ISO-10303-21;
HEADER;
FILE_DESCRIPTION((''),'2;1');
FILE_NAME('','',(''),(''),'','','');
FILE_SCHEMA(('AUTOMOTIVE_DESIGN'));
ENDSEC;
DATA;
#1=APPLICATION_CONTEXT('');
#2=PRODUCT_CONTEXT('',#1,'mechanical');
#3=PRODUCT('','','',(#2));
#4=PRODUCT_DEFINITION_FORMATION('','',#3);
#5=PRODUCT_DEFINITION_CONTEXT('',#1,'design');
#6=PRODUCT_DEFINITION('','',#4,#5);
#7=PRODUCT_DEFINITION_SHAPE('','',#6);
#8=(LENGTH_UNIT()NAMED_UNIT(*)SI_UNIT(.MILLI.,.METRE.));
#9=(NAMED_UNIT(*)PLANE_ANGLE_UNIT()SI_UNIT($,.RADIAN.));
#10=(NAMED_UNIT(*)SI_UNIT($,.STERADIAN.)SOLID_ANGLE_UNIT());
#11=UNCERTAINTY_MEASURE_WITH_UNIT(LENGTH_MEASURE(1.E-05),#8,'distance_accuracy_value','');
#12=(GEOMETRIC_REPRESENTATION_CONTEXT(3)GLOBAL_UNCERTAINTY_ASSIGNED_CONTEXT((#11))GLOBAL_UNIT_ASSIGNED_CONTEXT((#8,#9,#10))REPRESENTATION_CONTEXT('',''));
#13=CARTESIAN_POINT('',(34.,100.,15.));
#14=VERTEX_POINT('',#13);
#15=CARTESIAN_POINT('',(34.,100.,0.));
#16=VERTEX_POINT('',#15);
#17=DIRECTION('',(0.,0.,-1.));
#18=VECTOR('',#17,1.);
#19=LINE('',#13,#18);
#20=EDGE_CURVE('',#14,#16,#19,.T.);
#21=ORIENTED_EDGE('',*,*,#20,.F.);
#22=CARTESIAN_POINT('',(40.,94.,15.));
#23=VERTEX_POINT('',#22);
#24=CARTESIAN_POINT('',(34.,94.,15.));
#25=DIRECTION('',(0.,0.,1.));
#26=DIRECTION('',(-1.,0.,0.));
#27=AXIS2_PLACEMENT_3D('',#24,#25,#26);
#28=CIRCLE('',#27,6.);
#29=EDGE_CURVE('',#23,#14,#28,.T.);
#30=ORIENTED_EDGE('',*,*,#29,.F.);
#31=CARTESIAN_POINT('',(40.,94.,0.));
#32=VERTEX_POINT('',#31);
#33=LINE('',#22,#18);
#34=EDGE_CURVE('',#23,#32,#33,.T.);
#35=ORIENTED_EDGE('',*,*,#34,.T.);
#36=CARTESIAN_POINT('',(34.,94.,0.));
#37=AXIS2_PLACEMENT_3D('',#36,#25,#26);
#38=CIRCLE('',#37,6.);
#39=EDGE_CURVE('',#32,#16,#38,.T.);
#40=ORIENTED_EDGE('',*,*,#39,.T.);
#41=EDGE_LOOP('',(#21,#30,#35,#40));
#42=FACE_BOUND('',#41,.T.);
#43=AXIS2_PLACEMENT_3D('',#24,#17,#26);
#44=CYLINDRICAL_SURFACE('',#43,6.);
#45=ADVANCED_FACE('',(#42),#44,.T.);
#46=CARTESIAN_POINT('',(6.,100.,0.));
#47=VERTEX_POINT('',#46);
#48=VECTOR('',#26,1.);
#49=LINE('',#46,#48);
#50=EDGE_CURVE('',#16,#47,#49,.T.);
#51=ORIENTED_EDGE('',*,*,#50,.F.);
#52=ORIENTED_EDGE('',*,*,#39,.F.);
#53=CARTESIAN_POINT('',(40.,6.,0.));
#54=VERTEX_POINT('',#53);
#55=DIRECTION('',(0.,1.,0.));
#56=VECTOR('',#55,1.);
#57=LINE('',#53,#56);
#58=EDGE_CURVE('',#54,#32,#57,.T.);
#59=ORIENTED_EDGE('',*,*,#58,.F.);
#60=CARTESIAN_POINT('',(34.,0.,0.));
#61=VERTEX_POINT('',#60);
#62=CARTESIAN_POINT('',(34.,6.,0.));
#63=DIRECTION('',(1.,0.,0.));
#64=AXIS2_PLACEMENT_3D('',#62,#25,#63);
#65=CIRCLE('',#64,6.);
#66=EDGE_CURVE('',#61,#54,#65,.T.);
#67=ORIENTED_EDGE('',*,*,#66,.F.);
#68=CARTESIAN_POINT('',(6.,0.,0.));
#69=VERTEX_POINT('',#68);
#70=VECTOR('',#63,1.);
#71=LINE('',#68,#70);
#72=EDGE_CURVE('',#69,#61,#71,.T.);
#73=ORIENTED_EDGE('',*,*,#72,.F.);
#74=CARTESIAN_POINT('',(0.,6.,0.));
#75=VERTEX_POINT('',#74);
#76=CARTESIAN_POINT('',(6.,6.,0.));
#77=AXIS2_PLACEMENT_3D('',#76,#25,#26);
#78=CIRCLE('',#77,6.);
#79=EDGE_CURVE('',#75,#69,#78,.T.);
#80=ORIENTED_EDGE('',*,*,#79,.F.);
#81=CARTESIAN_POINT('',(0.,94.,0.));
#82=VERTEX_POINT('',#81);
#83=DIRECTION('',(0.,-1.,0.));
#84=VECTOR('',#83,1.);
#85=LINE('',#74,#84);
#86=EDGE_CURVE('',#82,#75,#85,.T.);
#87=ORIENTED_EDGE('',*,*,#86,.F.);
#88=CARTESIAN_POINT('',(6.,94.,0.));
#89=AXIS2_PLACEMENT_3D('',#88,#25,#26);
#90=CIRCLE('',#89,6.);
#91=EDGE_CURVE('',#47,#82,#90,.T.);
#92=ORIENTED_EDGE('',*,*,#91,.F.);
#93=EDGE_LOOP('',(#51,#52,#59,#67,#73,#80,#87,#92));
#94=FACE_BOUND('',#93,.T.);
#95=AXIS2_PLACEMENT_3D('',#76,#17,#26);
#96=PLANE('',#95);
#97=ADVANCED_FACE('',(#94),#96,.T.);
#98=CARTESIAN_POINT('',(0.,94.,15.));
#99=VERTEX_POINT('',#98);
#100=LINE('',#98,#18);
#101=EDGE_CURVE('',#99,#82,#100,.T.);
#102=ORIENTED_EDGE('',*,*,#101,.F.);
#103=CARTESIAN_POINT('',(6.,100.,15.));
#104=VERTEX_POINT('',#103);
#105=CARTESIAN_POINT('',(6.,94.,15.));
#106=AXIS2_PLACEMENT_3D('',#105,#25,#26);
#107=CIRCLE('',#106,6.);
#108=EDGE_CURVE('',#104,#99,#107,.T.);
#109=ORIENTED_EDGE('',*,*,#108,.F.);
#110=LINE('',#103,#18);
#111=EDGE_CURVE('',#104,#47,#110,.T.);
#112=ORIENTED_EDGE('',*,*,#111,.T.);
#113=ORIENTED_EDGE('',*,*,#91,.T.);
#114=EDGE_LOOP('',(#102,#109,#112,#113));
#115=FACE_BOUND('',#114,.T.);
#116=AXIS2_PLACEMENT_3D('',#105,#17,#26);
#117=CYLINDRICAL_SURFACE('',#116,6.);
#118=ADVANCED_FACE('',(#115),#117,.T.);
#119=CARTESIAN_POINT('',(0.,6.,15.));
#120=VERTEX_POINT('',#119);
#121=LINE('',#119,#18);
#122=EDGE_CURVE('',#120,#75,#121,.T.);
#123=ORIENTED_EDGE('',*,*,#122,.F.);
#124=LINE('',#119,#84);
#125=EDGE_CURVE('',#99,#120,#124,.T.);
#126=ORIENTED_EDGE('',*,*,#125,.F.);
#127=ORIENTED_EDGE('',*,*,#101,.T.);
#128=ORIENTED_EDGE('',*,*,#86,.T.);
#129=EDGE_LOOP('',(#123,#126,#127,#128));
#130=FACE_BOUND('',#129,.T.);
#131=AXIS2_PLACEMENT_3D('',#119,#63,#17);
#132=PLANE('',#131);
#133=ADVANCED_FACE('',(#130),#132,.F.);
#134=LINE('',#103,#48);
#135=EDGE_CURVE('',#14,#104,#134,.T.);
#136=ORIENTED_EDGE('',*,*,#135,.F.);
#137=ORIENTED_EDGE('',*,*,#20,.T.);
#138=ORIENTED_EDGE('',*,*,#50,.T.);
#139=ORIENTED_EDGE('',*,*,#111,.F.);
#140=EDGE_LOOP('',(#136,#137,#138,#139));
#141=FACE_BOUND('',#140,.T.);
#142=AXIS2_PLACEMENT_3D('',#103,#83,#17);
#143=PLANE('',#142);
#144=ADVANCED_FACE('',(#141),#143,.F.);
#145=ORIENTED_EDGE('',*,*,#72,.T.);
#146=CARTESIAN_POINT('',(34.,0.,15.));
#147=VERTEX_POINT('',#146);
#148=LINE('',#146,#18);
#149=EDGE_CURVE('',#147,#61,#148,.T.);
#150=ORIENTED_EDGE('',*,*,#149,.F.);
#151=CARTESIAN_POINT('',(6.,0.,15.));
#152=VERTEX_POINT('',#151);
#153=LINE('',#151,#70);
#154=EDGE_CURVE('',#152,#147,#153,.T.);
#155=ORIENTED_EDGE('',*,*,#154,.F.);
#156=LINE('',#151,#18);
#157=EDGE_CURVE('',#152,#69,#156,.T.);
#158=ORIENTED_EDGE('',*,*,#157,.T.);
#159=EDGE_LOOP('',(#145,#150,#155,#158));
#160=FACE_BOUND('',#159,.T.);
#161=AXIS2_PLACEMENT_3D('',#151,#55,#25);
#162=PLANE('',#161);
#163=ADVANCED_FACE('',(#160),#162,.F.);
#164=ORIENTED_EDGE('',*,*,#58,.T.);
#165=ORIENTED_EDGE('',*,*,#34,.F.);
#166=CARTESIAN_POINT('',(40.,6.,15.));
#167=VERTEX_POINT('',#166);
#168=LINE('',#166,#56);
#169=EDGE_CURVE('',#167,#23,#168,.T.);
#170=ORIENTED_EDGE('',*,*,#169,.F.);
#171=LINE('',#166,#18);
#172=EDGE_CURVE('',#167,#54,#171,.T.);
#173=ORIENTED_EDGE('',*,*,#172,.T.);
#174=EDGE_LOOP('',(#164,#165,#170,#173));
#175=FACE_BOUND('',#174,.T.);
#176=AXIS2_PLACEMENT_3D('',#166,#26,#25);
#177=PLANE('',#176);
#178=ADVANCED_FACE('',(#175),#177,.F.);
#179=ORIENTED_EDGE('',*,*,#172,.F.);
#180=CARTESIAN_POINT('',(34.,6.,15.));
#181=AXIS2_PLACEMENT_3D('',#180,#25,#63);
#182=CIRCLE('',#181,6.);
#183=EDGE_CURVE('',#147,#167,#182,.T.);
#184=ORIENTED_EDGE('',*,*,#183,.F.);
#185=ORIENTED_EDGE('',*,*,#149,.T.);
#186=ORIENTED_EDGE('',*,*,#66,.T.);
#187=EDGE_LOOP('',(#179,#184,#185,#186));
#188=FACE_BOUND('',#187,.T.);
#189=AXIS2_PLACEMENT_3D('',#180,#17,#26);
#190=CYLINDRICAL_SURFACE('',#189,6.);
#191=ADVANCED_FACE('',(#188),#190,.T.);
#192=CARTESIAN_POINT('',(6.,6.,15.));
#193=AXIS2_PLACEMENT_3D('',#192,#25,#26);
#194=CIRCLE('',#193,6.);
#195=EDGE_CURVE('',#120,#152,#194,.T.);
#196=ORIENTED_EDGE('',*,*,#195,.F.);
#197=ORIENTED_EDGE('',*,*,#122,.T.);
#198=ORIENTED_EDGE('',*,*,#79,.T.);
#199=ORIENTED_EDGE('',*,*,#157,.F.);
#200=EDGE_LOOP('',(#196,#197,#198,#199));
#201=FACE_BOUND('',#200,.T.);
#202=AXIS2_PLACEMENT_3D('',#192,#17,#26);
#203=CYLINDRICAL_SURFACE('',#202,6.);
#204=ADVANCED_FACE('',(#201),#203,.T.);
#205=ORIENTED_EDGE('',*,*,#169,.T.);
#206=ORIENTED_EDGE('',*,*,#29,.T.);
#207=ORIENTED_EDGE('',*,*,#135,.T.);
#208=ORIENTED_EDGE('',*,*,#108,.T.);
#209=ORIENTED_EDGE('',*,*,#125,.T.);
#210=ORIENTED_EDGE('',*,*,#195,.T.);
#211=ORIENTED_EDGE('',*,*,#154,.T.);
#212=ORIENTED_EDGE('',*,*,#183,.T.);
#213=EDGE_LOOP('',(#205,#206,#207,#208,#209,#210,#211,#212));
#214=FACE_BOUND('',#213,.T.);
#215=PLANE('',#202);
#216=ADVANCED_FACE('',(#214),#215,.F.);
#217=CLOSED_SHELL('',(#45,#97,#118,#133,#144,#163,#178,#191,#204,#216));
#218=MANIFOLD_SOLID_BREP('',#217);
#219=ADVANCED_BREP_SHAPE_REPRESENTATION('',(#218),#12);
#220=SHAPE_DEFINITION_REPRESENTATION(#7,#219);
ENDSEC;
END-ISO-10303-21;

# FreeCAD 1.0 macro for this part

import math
import FreeCAD as App
import Part
import Sketcher
Q = App.Units.Quantity

doc = App.newDocument("Part")
body = doc.addObject("PartDesign::Body", "Body")

# Sketch on XY plane
sketch1 = body.newObject("Sketcher::SketchObject", "Sketch")
sketch1.AttachmentSupport = (doc.getObject("XY_Plane"), [""])
sketch1.MapMode = "FlatFace"
sketch1.addGeometry(Part.LineSegment(App.Vector(6, 0, 0), App.Vector(34, 0, 0)), False)
sketch1.addGeometry(Part.ArcOfCircle(Part.Circle(App.Vector(34, 6, 0), App.Vector(0, 0, 1), 6), math.radians(-90), math.radians(0)), False)
sketch1.addGeometry(Part.LineSegment(App.Vector(40, 6, 0), App.Vector(40, 94, 0)), False)
sketch1.addGeometry(Part.ArcOfCircle(Part.Circle(App.Vector(34, 94, 0), App.Vector(0, 0, 1), 6), math.radians(0), math.radians(90)), False)
sketch1.addGeometry(Part.LineSegment(App.Vector(34, 100, 0), App.Vector(6, 100, 0)), False)
sketch1.addGeometry(Part.ArcOfCircle(Part.Circle(App.Vector(6, 94, 0), App.Vector(0, 0, 1), 6), math.radians(90), math.radians(180)), False)
sketch1.addGeometry(Part.LineSegment(App.Vector(0, 94, 0), App.Vector(0, 6, 0)), False)
sketch1.addGeometry(Part.ArcOfCircle(Part.Circle(App.Vector(6, 6, 0), App.Vector(0, 0, 1), 6), math.radians(180), math.radians(270)), False)
sketch1.addConstraint(Sketcher.Constraint("Tangent", 0, 2, 1, 1))
sketch1.addConstraint(Sketcher.Constraint("Tangent", 1, 2, 2, 1))
sketch1.addConstraint(Sketcher.Constraint("Tangent", 2, 2, 3, 1))
sketch1.addConstraint(Sketcher.Constraint("Tangent", 3, 2, 4, 1))
sketch1.addConstraint(Sketcher.Constraint("Tangent", 4, 2, 5, 1))
sketch1.addConstraint(Sketcher.Constraint("Tangent", 5, 2, 6, 1))
sketch1.addConstraint(Sketcher.Constraint("Tangent", 6, 2, 7, 1))
sketch1.addConstraint(Sketcher.Constraint("Tangent", 7, 2, 0, 1))
sketch1.addConstraint(Sketcher.Constraint("Horizontal", 0))
sketch1.addConstraint(Sketcher.Constraint("Vertical", 2))
sketch1.addConstraint(Sketcher.Constraint("Horizontal", 4))
sketch1.addConstraint(Sketcher.Constraint("Vertical", 6))
sketch1.addConstraint(Sketcher.Constraint("Equal", 1, 3))
sketch1.addConstraint(Sketcher.Constraint("Equal", 3, 5))
sketch1.addConstraint(Sketcher.Constraint("Equal", 5, 7))
sketch1.addConstraint(Sketcher.Constraint("PointOnObject", 0, 2, -1))
sketch1.addConstraint(Sketcher.Constraint("PointOnObject", 5, 2, -2))
sketch1.addConstraint(Sketcher.Constraint("Radius", 1, Q("6 mm")))
sketch1.addConstraint(Sketcher.Constraint("DistanceX", 0, 1, 0, 2, Q("28 mm")))
sketch1.addConstraint(Sketcher.Constraint("DistanceY", 2, 1, 2, 2, Q("88 mm")))
pad1 = body.newObject("PartDesign::Pad", "Pad")
pad1.Profile = sketch1
pad1.Length = 15

doc.recompute()
